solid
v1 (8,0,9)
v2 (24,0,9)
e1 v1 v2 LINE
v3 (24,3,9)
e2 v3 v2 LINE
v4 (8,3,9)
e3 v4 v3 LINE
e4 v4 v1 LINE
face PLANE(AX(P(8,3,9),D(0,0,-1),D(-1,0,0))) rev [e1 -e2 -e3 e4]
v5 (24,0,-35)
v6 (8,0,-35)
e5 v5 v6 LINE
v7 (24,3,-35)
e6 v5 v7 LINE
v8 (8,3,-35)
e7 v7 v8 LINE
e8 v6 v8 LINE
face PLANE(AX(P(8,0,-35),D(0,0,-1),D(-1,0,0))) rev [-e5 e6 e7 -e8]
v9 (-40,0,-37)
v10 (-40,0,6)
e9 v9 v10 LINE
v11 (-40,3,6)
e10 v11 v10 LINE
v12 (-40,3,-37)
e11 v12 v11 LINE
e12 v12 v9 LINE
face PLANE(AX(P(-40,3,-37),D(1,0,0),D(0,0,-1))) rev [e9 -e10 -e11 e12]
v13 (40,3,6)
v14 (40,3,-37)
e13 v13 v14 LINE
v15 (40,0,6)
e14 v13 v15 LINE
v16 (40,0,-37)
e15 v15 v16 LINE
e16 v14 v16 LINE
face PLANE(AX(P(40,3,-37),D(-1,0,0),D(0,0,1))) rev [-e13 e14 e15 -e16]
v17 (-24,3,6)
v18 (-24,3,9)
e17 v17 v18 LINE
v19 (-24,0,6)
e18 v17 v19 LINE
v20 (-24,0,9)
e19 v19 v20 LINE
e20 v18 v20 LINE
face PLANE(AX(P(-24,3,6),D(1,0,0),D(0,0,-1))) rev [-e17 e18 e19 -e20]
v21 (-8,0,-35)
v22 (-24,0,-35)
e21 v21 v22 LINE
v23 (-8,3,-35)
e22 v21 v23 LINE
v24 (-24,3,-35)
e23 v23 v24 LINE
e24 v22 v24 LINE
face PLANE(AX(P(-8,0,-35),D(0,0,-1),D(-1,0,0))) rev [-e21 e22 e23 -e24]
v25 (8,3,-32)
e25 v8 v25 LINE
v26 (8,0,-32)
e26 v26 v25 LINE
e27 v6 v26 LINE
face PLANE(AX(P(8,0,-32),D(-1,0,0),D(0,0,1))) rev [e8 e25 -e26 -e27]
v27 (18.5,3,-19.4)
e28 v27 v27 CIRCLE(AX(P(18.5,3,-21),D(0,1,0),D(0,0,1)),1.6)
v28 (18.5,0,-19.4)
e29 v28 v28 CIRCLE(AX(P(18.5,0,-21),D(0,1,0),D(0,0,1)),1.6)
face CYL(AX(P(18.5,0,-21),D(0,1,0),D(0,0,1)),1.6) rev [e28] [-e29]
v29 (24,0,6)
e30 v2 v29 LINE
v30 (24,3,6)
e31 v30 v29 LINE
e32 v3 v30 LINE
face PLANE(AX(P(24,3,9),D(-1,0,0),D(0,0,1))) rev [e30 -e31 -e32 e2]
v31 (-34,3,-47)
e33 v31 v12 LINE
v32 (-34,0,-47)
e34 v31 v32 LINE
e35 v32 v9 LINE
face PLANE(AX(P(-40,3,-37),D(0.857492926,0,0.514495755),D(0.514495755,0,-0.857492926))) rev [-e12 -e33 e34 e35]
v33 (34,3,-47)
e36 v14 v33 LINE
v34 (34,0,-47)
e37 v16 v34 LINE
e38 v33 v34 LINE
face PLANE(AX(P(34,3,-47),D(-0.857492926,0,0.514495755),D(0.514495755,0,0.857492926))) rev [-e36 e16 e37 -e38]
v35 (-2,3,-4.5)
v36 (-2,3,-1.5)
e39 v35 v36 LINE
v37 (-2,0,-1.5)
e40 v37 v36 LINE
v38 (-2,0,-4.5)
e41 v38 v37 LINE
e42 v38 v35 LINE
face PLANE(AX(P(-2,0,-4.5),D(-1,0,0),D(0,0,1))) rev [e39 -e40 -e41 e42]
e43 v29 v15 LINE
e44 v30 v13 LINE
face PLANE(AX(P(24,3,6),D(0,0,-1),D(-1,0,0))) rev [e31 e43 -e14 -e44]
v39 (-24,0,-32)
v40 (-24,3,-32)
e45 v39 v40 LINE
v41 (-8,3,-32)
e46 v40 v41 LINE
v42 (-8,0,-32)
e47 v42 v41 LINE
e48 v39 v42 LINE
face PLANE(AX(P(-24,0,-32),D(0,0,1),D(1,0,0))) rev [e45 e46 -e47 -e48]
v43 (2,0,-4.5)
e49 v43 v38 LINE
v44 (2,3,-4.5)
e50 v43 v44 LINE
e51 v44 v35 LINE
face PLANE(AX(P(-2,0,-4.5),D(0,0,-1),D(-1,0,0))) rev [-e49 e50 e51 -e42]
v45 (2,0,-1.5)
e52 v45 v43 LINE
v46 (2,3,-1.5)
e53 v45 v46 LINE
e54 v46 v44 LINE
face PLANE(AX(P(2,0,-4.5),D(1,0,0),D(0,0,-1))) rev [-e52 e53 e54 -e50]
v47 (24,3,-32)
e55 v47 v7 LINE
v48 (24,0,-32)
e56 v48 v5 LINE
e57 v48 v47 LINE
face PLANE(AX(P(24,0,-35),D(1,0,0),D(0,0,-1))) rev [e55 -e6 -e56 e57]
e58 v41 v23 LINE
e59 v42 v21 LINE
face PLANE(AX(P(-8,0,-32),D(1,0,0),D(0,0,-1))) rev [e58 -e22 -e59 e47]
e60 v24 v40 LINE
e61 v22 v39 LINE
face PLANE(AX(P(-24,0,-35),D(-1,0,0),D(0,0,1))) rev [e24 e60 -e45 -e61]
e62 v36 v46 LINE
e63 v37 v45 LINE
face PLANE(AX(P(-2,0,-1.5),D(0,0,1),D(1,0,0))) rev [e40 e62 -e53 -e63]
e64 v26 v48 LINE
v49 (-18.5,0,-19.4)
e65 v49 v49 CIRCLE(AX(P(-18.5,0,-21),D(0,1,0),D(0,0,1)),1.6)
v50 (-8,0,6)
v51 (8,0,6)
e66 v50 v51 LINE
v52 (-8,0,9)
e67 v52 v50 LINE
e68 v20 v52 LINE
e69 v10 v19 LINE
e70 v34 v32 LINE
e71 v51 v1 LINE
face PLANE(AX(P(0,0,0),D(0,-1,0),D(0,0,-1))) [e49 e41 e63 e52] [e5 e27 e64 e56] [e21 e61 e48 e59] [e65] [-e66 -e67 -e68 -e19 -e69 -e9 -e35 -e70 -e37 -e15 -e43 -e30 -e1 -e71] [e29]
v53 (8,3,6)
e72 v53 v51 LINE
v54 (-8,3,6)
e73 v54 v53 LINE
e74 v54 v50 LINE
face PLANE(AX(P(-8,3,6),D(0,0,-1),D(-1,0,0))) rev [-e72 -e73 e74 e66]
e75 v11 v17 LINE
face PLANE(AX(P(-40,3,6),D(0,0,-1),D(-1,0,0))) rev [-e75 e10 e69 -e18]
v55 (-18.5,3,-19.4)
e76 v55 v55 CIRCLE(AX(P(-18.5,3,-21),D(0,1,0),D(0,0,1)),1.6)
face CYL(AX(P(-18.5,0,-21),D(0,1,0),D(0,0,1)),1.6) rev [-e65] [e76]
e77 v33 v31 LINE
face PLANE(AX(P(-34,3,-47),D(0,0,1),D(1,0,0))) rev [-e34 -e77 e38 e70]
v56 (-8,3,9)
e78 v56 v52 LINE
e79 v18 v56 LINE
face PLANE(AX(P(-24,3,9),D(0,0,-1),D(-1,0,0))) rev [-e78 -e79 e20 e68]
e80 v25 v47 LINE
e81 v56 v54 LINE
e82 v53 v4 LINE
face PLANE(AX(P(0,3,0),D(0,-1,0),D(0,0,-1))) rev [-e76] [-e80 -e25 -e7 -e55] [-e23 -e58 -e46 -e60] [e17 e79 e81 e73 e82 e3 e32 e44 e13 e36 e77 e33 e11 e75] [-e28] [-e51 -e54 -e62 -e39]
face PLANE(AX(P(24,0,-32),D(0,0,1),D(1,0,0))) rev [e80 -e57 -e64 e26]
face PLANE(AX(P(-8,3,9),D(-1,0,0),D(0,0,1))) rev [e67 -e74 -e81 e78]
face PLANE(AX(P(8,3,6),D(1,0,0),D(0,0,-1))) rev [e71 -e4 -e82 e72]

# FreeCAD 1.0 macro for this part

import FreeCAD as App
import Part
import Sketcher
from FreeCAD import Vector


def add_polygon(sketch, points):
    """Adds a closed chain of lines whose ends are joined by coincident constraints."""
    first, n = sketch.GeometryCount, len(points)
    for a, b in zip(points, points[1:] + points[:1]):
        sketch.addGeometry(Part.LineSegment(App.Vector(*a, 0), App.Vector(*b, 0)), False)
    for i in range(n):
        sketch.addConstraint(Sketcher.Constraint("Coincident", first + i, 2, first + (i + 1) % n, 1))

doc = App.newDocument("Part")
body = doc.addObject("PartDesign::Body", "Body")

# Sketch on XZ plane
sketch1 = body.newObject("Sketcher::SketchObject", "Sketch")
sketch1.AttachmentSupport = (doc.getObject("XZ_Plane"), [""])
sketch1.MapMode = "FlatFace"
add_polygon(sketch1, [(-34, -47), (-40, -37), (-40, 6), (-24, 6), (-24, 9), (-8, 9), (-8, 6), (8, 6), (8, 9), (24, 9), (24, 6), (40, 6), (40, -37), (34, -47)])  # lines 0-13
sketch1.addConstraint(Sketcher.Constraint("Vertical", 1))
sketch1.addConstraint(Sketcher.Constraint("Horizontal", 2))
sketch1.addConstraint(Sketcher.Constraint("Vertical", 3))
sketch1.addConstraint(Sketcher.Constraint("Horizontal", 4))
sketch1.addConstraint(Sketcher.Constraint("Vertical", 5))
sketch1.addConstraint(Sketcher.Constraint("Horizontal", 6))
sketch1.addConstraint(Sketcher.Constraint("Vertical", 7))
sketch1.addConstraint(Sketcher.Constraint("Horizontal", 8))
sketch1.addConstraint(Sketcher.Constraint("Vertical", 9))
sketch1.addConstraint(Sketcher.Constraint("Horizontal", 10))
sketch1.addConstraint(Sketcher.Constraint("Vertical", 11))
sketch1.addConstraint(Sketcher.Constraint("Horizontal", 13))
sketch1.addConstraint(Sketcher.Constraint("Symmetric", 4, 2, 7, 2, -2))
sketch1.addConstraint(Sketcher.Constraint("Symmetric", 2, 2, 9, 2, -2))
sketch1.addConstraint(Sketcher.Constraint("Symmetric", 0, 2, 11, 2, -2))
sketch1.addConstraint(Sketcher.Constraint("Horizontal", 2, 2, 5, 2))
sketch1.addConstraint(Sketcher.Constraint("Equal", 2, 4))
sketch1.addConstraint(Sketcher.Constraint("Equal", 4, 6))
sketch1.addConstraint(Sketcher.Constraint("Equal", 0, 12))
sketch1.addConstraint(Sketcher.Constraint("DistanceX", 2, 1, 2, 2, 16.0))
sketch1.addConstraint(Sketcher.Constraint("DistanceX", 13, 2, 13, 1, 68.0))
sketch1.addConstraint(Sketcher.Constraint("DistanceY", 1, 1, 1, 2, 43.0))
sketch1.addConstraint(Sketcher.Constraint("DistanceY", 3, 1, 3, 2, 3.0))
sketch1.addConstraint(Sketcher.Constraint("DistanceY", 0, 2, -1, 1, 37.0))
sketch1.addConstraint(Sketcher.Constraint("DistanceY", 12, 2, -1, 1, 47.0))
pad1 = body.newObject("PartDesign::Pad", "Pad")
pad1.Profile = sketch1
pad1.Length = 3
pad1.Reversed = True

# Sketch on XZ plane
sketch2 = body.newObject("Sketcher::SketchObject", "Sketch001")
sketch2.AttachmentSupport = (doc.getObject("XZ_Plane"), [""])
sketch2.MapMode = "FlatFace"
sketch2.AttachmentOffset = App.Placement(Vector(0, 0, -3), App.Rotation())
sketch2.addGeometry(Part.Circle(Vector(-18.5, -21, 0), Vector(0, 0, 1), 1.6), False)  # 0
sketch2.addGeometry(Part.Circle(Vector(18.5, -21, 0), Vector(0, 0, 1), 1.6), False)  # 1
add_polygon(sketch2, [(-2, -4.5), (-2, -1.5), (2, -1.5), (2, -4.5)])  # lines 2-5
add_polygon(sketch2, [(-24, -35), (-24, -32), (-8, -32), (-8, -35)])  # lines 6-9
add_polygon(sketch2, [(8, -35), (8, -32), (24, -32), (24, -35)])  # lines 10-13
sketch2.addConstraint(Sketcher.Constraint("Vertical", 2))
sketch2.addConstraint(Sketcher.Constraint("Horizontal", 3))
sketch2.addConstraint(Sketcher.Constraint("Vertical", 4))
sketch2.addConstraint(Sketcher.Constraint("Horizontal", 5))
sketch2.addConstraint(Sketcher.Constraint("Vertical", 6))
sketch2.addConstraint(Sketcher.Constraint("Horizontal", 7))
sketch2.addConstraint(Sketcher.Constraint("Vertical", 8))
sketch2.addConstraint(Sketcher.Constraint("Horizontal", 9))
sketch2.addConstraint(Sketcher.Constraint("Vertical", 10))
sketch2.addConstraint(Sketcher.Constraint("Horizontal", 11))
sketch2.addConstraint(Sketcher.Constraint("Vertical", 12))
sketch2.addConstraint(Sketcher.Constraint("Horizontal", 13))
sketch2.addConstraint(Sketcher.Constraint("Equal", 0, 1))
sketch2.addConstraint(Sketcher.Constraint("Symmetric", 0, 3, 1, 3, -2))
sketch2.addConstraint(Sketcher.Constraint("Symmetric", 7, 2, 10, 2, -2))
sketch2.addConstraint(Sketcher.Constraint("Symmetric", 9, 2, 12, 2, -2))
sketch2.addConstraint(Sketcher.Constraint("Equal", 4, 6))
sketch2.addConstraint(Sketcher.Constraint("Diameter", 0, 3.2))
sketch2.addConstraint(Sketcher.Constraint("DistanceX", 3, 1, 3, 2, 4.0))
sketch2.addConstraint(Sketcher.Constraint("DistanceX", 7, 1, 7, 2, 16.0))
sketch2.addConstraint(Sketcher.Constraint("DistanceY", 2, 1, 2, 2, 3.0))
sketch2.addConstraint(Sketcher.Constraint("DistanceY", 0, 3, -1, 1, 21.0))
sketch2.addConstraint(Sketcher.Constraint("DistanceX", 2, 2, -1, 1, 2.0))
sketch2.addConstraint(Sketcher.Constraint("DistanceX", 6, 2, -1, 1, 24.0))
sketch2.addConstraint(Sketcher.Constraint("DistanceY", 6, 2, -1, 1, 32.0))
sketch2.addConstraint(Sketcher.Constraint("DistanceX", 0, 3, 1, 3, 37.0))
sketch2.addConstraint(Sketcher.Constraint("DistanceY", 2, 2, -1, 1, 1.5))
pocket1 = body.newObject("PartDesign::Pocket", "Pocket")
pocket1.Profile = sketch2
pocket1.Type = "ThroughAll"
pocket1.Reversed = True

doc.recompute()
